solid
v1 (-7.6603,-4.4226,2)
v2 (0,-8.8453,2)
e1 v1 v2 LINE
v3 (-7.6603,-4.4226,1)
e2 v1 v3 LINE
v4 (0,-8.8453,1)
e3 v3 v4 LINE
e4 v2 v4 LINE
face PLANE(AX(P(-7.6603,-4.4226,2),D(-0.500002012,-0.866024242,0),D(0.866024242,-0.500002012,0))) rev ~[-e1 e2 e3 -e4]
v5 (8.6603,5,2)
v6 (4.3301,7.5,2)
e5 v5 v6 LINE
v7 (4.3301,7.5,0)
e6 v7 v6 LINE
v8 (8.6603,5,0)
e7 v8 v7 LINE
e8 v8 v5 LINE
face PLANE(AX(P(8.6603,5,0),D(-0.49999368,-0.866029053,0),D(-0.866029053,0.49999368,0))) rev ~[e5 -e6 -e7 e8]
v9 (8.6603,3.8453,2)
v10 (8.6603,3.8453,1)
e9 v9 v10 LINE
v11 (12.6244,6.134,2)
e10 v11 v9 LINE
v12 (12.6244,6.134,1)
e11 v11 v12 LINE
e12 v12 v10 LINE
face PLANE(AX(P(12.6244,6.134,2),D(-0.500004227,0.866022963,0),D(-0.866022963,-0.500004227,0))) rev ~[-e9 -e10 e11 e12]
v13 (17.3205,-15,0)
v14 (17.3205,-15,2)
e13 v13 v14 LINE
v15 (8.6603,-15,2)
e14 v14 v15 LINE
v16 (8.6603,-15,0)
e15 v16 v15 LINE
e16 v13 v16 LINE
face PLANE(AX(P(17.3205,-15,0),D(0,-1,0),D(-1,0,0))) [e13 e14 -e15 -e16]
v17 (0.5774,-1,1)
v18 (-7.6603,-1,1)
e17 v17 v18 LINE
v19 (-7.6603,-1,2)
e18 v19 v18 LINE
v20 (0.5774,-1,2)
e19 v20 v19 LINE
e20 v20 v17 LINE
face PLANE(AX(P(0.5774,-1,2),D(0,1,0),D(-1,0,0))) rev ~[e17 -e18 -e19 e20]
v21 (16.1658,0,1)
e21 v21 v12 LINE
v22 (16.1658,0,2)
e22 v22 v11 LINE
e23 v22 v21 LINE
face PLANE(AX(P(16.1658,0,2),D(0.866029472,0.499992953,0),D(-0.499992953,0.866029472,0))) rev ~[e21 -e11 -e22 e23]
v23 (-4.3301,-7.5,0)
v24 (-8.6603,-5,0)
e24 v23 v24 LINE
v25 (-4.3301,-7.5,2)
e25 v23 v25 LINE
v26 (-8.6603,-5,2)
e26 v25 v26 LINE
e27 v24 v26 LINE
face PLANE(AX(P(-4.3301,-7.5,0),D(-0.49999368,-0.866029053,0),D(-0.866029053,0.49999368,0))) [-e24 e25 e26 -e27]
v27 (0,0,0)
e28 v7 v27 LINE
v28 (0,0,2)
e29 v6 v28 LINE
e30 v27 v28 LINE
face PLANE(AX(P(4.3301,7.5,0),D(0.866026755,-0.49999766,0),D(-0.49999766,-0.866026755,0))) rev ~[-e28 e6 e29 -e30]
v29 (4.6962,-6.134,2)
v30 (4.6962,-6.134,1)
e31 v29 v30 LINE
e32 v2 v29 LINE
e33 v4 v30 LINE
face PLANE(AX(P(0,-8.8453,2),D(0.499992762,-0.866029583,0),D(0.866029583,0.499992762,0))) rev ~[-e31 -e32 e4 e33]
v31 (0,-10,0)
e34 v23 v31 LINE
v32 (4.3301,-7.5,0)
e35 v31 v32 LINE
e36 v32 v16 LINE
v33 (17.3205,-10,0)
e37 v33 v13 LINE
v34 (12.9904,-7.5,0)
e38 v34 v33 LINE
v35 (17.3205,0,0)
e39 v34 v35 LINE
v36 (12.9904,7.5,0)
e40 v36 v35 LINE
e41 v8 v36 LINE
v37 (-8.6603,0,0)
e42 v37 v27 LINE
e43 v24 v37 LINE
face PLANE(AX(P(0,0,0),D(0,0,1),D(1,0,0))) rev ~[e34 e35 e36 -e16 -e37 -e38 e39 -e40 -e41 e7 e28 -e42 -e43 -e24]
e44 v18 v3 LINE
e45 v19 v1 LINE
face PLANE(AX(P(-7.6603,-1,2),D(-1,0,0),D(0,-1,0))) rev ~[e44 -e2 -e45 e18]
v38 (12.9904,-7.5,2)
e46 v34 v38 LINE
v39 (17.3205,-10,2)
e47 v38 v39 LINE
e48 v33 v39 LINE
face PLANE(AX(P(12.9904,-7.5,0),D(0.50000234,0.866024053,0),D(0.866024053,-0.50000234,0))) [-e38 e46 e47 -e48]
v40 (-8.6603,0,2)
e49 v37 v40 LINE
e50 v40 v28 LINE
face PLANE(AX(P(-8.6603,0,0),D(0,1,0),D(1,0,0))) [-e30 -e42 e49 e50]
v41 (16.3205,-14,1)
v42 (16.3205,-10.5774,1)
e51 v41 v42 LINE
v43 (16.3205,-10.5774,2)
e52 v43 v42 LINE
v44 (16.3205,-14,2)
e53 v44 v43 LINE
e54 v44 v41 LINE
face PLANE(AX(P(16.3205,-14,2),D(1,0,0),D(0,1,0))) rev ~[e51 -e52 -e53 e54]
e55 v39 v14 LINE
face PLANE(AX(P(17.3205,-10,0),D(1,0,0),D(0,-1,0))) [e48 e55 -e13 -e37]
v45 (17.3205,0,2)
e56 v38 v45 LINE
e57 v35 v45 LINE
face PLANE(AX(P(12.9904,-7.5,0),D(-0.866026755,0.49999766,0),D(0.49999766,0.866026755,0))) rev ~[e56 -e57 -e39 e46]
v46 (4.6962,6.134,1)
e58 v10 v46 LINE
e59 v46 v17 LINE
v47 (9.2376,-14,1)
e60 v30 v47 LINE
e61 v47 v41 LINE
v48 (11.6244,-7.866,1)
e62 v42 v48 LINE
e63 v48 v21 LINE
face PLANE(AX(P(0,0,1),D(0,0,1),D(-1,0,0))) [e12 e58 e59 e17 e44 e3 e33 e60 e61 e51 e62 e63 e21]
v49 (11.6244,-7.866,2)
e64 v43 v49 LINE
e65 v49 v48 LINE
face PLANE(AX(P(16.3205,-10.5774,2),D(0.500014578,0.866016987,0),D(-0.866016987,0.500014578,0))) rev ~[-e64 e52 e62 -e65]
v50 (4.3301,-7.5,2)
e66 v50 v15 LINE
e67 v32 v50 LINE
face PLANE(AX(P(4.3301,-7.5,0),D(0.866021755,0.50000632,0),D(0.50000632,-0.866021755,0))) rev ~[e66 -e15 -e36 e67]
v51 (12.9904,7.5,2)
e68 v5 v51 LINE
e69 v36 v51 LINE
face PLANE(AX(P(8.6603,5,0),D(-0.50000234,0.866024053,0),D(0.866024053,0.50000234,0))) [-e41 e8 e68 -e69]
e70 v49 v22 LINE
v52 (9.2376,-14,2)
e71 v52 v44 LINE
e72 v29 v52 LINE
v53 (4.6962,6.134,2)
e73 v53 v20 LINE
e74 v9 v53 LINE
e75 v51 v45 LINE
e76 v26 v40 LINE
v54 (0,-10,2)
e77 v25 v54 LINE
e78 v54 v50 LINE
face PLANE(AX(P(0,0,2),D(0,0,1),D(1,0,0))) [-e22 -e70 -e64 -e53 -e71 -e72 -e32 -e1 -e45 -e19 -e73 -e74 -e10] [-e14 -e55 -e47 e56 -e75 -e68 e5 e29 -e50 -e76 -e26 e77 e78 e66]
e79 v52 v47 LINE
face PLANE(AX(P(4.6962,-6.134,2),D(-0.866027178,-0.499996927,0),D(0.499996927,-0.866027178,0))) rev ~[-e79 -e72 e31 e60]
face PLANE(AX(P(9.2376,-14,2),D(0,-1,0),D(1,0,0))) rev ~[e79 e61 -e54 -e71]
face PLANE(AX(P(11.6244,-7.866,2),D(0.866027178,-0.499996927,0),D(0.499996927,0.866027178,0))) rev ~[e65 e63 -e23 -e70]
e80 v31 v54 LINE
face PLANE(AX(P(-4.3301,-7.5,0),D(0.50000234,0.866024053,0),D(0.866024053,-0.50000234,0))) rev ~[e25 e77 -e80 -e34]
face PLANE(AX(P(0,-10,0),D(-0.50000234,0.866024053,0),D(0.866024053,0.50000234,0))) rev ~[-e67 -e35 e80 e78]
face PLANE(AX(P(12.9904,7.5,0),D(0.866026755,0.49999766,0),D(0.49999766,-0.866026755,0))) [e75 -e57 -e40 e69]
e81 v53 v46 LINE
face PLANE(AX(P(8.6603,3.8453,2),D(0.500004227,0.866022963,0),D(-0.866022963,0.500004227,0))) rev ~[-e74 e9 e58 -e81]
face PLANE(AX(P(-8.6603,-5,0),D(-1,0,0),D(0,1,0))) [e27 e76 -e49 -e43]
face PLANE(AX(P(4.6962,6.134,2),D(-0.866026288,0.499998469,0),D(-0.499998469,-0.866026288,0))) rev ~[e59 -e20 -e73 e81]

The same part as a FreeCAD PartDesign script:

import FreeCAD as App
import Part
import Sketcher
Q = App.Units.Quantity

doc = App.newDocument("Part")
params = doc.addObject("Spreadsheet::Sheet", "Params")
for row, (alias, value) in enumerate([
    ("sketch1_height", "5 mm"),
    ("pad1_length", "2 mm"),
    ("pocket1_length", "1 mm"),
], start=1):
    params.set(f"A{row}", alias)
    params.set(f"B{row}", "=" + value)
    params.setAlias(f"B{row}", alias)

body = doc.addObject("PartDesign::Body", "Body")

# Sketch on XY plane
sketch1 = body.newObject("Sketcher::SketchObject", "Sketch")
sketch1.AttachmentSupport = (doc.getObject("XY_Plane"), [""])
sketch1.MapMode = "FlatFace"
sketch1.addGeometry([
    Part.LineSegment(App.Vector(4.3, 7.5, 0), App.Vector(0, 0, 0)),  # 0
    Part.LineSegment(App.Vector(0, 0, 0), App.Vector(-8.7, 0, 0)),  # 1
    Part.LineSegment(App.Vector(-8.7, 0, 0), App.Vector(-8.7, -5, 0)),  # 2
    Part.LineSegment(App.Vector(-8.7, -5, 0), App.Vector(-4.3, -7.5, 0)),  # 3
    Part.LineSegment(App.Vector(-4.3, -7.5, 0), App.Vector(0, -10, 0)),  # 4
    Part.LineSegment(App.Vector(0, -10, 0), App.Vector(4.3, -7.5, 0)),  # 5
    Part.LineSegment(App.Vector(4.3, -7.5, 0), App.Vector(8.7, -15, 0)),  # 6
    Part.LineSegment(App.Vector(8.7, -15, 0), App.Vector(17.3, -15, 0)),  # 7
    Part.LineSegment(App.Vector(17.3, -15, 0), App.Vector(17.3, -10, 0)),  # 8
    Part.LineSegment(App.Vector(17.3, -10, 0), App.Vector(13, -7.5, 0)),  # 9
    Part.LineSegment(App.Vector(13, -7.5, 0), App.Vector(17.3, 0, 0)),  # 10
    Part.LineSegment(App.Vector(17.3, 0, 0), App.Vector(13, 7.5, 0)),  # 11
    Part.LineSegment(App.Vector(13, 7.5, 0), App.Vector(8.7, 5, 0)),  # 12
    Part.LineSegment(App.Vector(8.7, 5, 0), App.Vector(4.3, 7.5, 0)),  # 13
], False)
sketch1.addConstraint([
    Sketcher.Constraint("Coincident", 0, 2, 1, 1),
    Sketcher.Constraint("Coincident", 1, 2, 2, 1),
    Sketcher.Constraint("Coincident", 2, 2, 3, 1),
    Sketcher.Constraint("Coincident", 3, 2, 4, 1),
    Sketcher.Constraint("Coincident", 4, 2, 5, 1),
    Sketcher.Constraint("Coincident", 5, 2, 6, 1),
    Sketcher.Constraint("Coincident", 6, 2, 7, 1),
    Sketcher.Constraint("Coincident", 7, 2, 8, 1),
    Sketcher.Constraint("Coincident", 8, 2, 9, 1),
    Sketcher.Constraint("Coincident", 9, 2, 10, 1),
    Sketcher.Constraint("Coincident", 10, 2, 11, 1),
    Sketcher.Constraint("Coincident", 11, 2, 12, 1),
    Sketcher.Constraint("Coincident", 12, 2, 13, 1),
    Sketcher.Constraint("Coincident", 13, 2, 0, 1),
    Sketcher.Constraint("Horizontal", 1),
    Sketcher.Constraint("Vertical", 2),
    Sketcher.Constraint("Horizontal", 7),
    Sketcher.Constraint("Vertical", 8),
    Sketcher.Constraint("Coincident", 0, 2, -1, 1),
    Sketcher.Constraint("Symmetric", 2, 2, 12, 2, -1, 1),
    Sketcher.Constraint("Symmetric", 3, 2, 13, 2, -1, 1),
    Sketcher.Constraint("Symmetric", 3, 2, 5, 2, -2),
    Sketcher.Constraint("Symmetric", 9, 2, 11, 2, -1),
    Sketcher.Constraint("PointOnObject", 4, 2, -2),
    Sketcher.Constraint("PointOnObject", 10, 2, -1),
    Sketcher.Constraint("Perpendicular", 0, 3),
    Sketcher.Constraint("Parallel", 3, 4),
    Sketcher.Constraint("Perpendicular", 5, 6),
    Sketcher.Constraint("Parallel", 4, 9),
    Sketcher.Constraint("Perpendicular", 9, 10),
    Sketcher.Constraint("Perpendicular", 11, 12),
    Sketcher.Constraint("Horizontal", 4, 2, 8, 2),
    Sketcher.Constraint("Horizontal", 5, 2, 9, 2),
    Sketcher.Constraint("Vertical", 6, 2, 12, 2),
    Sketcher.Constraint("Equal", 2, 8),
    Sketcher.Constraint("DistanceY", 2, 2, 2, 1, Q("5 mm")),
    Sketcher.Constraint("Angle", 6, Q("-59.9996 deg")),
])
sketch1.setExpression("Constraints[35]", "Params.sketch1_height")
pad1 = body.newObject("PartDesign::Pad", "Pad")
pad1.Profile = sketch1
pad1.setExpression("Length", "Params.pad1_length")

# Sketch on XY plane
sketch2 = body.newObject("Sketcher::SketchObject", "Sketch001")
sketch2.AttachmentSupport = (doc.getObject("XY_Plane"), [""])
sketch2.MapMode = "FlatFace"
sketch2.AttachmentOffset = App.Placement(App.Vector(0, 0, 2), App.Rotation())
sketch2.addGeometry([
    Part.LineSegment(App.Vector(4.7, 6.1, 0), App.Vector(0.6, -1, 0)),  # 0
    Part.LineSegment(App.Vector(0.6, -1, 0), App.Vector(-7.7, -1, 0)),  # 1
    Part.LineSegment(App.Vector(-7.7, -1, 0), App.Vector(-7.7, -4.4, 0)),  # 2
    Part.LineSegment(App.Vector(-7.7, -4.4, 0), App.Vector(0, -8.8, 0)),  # 3
    Part.LineSegment(App.Vector(0, -8.8, 0), App.Vector(4.7, -6.1, 0)),  # 4
    Part.LineSegment(App.Vector(4.7, -6.1, 0), App.Vector(9.2, -14, 0)),  # 5
    Part.LineSegment(App.Vector(9.2, -14, 0), App.Vector(16.3, -14, 0)),  # 6
    Part.LineSegment(App.Vector(16.3, -14, 0), App.Vector(16.3, -10.6, 0)),  # 7
    Part.LineSegment(App.Vector(16.3, -10.6, 0), App.Vector(11.6, -7.9, 0)),  # 8
    Part.LineSegment(App.Vector(11.6, -7.9, 0), App.Vector(16.2, 0, 0)),  # 9
    Part.LineSegment(App.Vector(16.2, 0, 0), App.Vector(12.6, 6.1, 0)),  # 10
    Part.LineSegment(App.Vector(12.6, 6.1, 0), App.Vector(8.7, 3.8, 0)),  # 11
    Part.LineSegment(App.Vector(8.7, 3.8, 0), App.Vector(4.7, 6.1, 0)),  # 12
], False)
sketch2.addConstraint([
    Sketcher.Constraint("Coincident", 0, 2, 1, 1),
    Sketcher.Constraint("Coincident", 1, 2, 2, 1),
    Sketcher.Constraint("Coincident", 2, 2, 3, 1),
    Sketcher.Constraint("Coincident", 3, 2, 4, 1),
    Sketcher.Constraint("Coincident", 4, 2, 5, 1),
    Sketcher.Constraint("Coincident", 5, 2, 6, 1),
    Sketcher.Constraint("Coincident", 6, 2, 7, 1),
    Sketcher.Constraint("Coincident", 7, 2, 8, 1),
    Sketcher.Constraint("Coincident", 8, 2, 9, 1),
    Sketcher.Constraint("Coincident", 9, 2, 10, 1),
    Sketcher.Constraint("Coincident", 10, 2, 11, 1),
    Sketcher.Constraint("Coincident", 11, 2, 12, 1),
    Sketcher.Constraint("Coincident", 12, 2, 0, 1),
    Sketcher.Constraint("Horizontal", 1),
    Sketcher.Constraint("Vertical", 2),
    Sketcher.Constraint("Horizontal", 6),
    Sketcher.Constraint("Vertical", 7),
    Sketcher.Constraint("Symmetric", 4, 2, 12, 2, -1),
    Sketcher.Constraint("PointOnObject", 3, 2, -2),
    Sketcher.Constraint("PointOnObject", 9, 2, -1),
    Sketcher.Constraint("Perpendicular", 0, 3),
    Sketcher.Constraint("Perpendicular", 4, 5),
    Sketcher.Constraint("Parallel", 3, 8),
    Sketcher.Constraint("Perpendicular", 8, 9),
    Sketcher.Constraint("Parallel", 5, 10),
    Sketcher.Constraint("Perpendicular", 10, 11),
    Sketcher.Constraint("Perpendicular", 9, 12),
    Sketcher.Constraint("Horizontal", 10, 2, 12, 2),
    Sketcher.Constraint("Equal", 2, 7),
    Sketcher.Constraint("Equal", 4, 8),
    Sketcher.Constraint("Equal", 5, 9),
    Sketcher.Constraint("Equal", 11, 12),
    Sketcher.Constraint("DistanceY", 0, 2, -1, 1, Q("1 mm")),
    Sketcher.Constraint("DistanceX", 8, 2, 10, 2, Q("1 mm")),
    Sketcher.Constraint("Angle", 0, Q("-120 deg")),
    Sketcher.Constraint("DistanceY", 5, 2, -1, 1, Q("14 mm")),
    Sketcher.Constraint("DistanceX", 6, 1, 6, 2, Q("7.083 mm")),
    Sketcher.Constraint("DistanceX", 1, 2, 1, 1, Q("8.2377 mm")),
])
pocket1 = body.newObject("PartDesign::Pocket", "Pocket")
pocket1.Profile = sketch2
pocket1.setExpression("Length", "Params.pocket1_length")

doc.recompute()
